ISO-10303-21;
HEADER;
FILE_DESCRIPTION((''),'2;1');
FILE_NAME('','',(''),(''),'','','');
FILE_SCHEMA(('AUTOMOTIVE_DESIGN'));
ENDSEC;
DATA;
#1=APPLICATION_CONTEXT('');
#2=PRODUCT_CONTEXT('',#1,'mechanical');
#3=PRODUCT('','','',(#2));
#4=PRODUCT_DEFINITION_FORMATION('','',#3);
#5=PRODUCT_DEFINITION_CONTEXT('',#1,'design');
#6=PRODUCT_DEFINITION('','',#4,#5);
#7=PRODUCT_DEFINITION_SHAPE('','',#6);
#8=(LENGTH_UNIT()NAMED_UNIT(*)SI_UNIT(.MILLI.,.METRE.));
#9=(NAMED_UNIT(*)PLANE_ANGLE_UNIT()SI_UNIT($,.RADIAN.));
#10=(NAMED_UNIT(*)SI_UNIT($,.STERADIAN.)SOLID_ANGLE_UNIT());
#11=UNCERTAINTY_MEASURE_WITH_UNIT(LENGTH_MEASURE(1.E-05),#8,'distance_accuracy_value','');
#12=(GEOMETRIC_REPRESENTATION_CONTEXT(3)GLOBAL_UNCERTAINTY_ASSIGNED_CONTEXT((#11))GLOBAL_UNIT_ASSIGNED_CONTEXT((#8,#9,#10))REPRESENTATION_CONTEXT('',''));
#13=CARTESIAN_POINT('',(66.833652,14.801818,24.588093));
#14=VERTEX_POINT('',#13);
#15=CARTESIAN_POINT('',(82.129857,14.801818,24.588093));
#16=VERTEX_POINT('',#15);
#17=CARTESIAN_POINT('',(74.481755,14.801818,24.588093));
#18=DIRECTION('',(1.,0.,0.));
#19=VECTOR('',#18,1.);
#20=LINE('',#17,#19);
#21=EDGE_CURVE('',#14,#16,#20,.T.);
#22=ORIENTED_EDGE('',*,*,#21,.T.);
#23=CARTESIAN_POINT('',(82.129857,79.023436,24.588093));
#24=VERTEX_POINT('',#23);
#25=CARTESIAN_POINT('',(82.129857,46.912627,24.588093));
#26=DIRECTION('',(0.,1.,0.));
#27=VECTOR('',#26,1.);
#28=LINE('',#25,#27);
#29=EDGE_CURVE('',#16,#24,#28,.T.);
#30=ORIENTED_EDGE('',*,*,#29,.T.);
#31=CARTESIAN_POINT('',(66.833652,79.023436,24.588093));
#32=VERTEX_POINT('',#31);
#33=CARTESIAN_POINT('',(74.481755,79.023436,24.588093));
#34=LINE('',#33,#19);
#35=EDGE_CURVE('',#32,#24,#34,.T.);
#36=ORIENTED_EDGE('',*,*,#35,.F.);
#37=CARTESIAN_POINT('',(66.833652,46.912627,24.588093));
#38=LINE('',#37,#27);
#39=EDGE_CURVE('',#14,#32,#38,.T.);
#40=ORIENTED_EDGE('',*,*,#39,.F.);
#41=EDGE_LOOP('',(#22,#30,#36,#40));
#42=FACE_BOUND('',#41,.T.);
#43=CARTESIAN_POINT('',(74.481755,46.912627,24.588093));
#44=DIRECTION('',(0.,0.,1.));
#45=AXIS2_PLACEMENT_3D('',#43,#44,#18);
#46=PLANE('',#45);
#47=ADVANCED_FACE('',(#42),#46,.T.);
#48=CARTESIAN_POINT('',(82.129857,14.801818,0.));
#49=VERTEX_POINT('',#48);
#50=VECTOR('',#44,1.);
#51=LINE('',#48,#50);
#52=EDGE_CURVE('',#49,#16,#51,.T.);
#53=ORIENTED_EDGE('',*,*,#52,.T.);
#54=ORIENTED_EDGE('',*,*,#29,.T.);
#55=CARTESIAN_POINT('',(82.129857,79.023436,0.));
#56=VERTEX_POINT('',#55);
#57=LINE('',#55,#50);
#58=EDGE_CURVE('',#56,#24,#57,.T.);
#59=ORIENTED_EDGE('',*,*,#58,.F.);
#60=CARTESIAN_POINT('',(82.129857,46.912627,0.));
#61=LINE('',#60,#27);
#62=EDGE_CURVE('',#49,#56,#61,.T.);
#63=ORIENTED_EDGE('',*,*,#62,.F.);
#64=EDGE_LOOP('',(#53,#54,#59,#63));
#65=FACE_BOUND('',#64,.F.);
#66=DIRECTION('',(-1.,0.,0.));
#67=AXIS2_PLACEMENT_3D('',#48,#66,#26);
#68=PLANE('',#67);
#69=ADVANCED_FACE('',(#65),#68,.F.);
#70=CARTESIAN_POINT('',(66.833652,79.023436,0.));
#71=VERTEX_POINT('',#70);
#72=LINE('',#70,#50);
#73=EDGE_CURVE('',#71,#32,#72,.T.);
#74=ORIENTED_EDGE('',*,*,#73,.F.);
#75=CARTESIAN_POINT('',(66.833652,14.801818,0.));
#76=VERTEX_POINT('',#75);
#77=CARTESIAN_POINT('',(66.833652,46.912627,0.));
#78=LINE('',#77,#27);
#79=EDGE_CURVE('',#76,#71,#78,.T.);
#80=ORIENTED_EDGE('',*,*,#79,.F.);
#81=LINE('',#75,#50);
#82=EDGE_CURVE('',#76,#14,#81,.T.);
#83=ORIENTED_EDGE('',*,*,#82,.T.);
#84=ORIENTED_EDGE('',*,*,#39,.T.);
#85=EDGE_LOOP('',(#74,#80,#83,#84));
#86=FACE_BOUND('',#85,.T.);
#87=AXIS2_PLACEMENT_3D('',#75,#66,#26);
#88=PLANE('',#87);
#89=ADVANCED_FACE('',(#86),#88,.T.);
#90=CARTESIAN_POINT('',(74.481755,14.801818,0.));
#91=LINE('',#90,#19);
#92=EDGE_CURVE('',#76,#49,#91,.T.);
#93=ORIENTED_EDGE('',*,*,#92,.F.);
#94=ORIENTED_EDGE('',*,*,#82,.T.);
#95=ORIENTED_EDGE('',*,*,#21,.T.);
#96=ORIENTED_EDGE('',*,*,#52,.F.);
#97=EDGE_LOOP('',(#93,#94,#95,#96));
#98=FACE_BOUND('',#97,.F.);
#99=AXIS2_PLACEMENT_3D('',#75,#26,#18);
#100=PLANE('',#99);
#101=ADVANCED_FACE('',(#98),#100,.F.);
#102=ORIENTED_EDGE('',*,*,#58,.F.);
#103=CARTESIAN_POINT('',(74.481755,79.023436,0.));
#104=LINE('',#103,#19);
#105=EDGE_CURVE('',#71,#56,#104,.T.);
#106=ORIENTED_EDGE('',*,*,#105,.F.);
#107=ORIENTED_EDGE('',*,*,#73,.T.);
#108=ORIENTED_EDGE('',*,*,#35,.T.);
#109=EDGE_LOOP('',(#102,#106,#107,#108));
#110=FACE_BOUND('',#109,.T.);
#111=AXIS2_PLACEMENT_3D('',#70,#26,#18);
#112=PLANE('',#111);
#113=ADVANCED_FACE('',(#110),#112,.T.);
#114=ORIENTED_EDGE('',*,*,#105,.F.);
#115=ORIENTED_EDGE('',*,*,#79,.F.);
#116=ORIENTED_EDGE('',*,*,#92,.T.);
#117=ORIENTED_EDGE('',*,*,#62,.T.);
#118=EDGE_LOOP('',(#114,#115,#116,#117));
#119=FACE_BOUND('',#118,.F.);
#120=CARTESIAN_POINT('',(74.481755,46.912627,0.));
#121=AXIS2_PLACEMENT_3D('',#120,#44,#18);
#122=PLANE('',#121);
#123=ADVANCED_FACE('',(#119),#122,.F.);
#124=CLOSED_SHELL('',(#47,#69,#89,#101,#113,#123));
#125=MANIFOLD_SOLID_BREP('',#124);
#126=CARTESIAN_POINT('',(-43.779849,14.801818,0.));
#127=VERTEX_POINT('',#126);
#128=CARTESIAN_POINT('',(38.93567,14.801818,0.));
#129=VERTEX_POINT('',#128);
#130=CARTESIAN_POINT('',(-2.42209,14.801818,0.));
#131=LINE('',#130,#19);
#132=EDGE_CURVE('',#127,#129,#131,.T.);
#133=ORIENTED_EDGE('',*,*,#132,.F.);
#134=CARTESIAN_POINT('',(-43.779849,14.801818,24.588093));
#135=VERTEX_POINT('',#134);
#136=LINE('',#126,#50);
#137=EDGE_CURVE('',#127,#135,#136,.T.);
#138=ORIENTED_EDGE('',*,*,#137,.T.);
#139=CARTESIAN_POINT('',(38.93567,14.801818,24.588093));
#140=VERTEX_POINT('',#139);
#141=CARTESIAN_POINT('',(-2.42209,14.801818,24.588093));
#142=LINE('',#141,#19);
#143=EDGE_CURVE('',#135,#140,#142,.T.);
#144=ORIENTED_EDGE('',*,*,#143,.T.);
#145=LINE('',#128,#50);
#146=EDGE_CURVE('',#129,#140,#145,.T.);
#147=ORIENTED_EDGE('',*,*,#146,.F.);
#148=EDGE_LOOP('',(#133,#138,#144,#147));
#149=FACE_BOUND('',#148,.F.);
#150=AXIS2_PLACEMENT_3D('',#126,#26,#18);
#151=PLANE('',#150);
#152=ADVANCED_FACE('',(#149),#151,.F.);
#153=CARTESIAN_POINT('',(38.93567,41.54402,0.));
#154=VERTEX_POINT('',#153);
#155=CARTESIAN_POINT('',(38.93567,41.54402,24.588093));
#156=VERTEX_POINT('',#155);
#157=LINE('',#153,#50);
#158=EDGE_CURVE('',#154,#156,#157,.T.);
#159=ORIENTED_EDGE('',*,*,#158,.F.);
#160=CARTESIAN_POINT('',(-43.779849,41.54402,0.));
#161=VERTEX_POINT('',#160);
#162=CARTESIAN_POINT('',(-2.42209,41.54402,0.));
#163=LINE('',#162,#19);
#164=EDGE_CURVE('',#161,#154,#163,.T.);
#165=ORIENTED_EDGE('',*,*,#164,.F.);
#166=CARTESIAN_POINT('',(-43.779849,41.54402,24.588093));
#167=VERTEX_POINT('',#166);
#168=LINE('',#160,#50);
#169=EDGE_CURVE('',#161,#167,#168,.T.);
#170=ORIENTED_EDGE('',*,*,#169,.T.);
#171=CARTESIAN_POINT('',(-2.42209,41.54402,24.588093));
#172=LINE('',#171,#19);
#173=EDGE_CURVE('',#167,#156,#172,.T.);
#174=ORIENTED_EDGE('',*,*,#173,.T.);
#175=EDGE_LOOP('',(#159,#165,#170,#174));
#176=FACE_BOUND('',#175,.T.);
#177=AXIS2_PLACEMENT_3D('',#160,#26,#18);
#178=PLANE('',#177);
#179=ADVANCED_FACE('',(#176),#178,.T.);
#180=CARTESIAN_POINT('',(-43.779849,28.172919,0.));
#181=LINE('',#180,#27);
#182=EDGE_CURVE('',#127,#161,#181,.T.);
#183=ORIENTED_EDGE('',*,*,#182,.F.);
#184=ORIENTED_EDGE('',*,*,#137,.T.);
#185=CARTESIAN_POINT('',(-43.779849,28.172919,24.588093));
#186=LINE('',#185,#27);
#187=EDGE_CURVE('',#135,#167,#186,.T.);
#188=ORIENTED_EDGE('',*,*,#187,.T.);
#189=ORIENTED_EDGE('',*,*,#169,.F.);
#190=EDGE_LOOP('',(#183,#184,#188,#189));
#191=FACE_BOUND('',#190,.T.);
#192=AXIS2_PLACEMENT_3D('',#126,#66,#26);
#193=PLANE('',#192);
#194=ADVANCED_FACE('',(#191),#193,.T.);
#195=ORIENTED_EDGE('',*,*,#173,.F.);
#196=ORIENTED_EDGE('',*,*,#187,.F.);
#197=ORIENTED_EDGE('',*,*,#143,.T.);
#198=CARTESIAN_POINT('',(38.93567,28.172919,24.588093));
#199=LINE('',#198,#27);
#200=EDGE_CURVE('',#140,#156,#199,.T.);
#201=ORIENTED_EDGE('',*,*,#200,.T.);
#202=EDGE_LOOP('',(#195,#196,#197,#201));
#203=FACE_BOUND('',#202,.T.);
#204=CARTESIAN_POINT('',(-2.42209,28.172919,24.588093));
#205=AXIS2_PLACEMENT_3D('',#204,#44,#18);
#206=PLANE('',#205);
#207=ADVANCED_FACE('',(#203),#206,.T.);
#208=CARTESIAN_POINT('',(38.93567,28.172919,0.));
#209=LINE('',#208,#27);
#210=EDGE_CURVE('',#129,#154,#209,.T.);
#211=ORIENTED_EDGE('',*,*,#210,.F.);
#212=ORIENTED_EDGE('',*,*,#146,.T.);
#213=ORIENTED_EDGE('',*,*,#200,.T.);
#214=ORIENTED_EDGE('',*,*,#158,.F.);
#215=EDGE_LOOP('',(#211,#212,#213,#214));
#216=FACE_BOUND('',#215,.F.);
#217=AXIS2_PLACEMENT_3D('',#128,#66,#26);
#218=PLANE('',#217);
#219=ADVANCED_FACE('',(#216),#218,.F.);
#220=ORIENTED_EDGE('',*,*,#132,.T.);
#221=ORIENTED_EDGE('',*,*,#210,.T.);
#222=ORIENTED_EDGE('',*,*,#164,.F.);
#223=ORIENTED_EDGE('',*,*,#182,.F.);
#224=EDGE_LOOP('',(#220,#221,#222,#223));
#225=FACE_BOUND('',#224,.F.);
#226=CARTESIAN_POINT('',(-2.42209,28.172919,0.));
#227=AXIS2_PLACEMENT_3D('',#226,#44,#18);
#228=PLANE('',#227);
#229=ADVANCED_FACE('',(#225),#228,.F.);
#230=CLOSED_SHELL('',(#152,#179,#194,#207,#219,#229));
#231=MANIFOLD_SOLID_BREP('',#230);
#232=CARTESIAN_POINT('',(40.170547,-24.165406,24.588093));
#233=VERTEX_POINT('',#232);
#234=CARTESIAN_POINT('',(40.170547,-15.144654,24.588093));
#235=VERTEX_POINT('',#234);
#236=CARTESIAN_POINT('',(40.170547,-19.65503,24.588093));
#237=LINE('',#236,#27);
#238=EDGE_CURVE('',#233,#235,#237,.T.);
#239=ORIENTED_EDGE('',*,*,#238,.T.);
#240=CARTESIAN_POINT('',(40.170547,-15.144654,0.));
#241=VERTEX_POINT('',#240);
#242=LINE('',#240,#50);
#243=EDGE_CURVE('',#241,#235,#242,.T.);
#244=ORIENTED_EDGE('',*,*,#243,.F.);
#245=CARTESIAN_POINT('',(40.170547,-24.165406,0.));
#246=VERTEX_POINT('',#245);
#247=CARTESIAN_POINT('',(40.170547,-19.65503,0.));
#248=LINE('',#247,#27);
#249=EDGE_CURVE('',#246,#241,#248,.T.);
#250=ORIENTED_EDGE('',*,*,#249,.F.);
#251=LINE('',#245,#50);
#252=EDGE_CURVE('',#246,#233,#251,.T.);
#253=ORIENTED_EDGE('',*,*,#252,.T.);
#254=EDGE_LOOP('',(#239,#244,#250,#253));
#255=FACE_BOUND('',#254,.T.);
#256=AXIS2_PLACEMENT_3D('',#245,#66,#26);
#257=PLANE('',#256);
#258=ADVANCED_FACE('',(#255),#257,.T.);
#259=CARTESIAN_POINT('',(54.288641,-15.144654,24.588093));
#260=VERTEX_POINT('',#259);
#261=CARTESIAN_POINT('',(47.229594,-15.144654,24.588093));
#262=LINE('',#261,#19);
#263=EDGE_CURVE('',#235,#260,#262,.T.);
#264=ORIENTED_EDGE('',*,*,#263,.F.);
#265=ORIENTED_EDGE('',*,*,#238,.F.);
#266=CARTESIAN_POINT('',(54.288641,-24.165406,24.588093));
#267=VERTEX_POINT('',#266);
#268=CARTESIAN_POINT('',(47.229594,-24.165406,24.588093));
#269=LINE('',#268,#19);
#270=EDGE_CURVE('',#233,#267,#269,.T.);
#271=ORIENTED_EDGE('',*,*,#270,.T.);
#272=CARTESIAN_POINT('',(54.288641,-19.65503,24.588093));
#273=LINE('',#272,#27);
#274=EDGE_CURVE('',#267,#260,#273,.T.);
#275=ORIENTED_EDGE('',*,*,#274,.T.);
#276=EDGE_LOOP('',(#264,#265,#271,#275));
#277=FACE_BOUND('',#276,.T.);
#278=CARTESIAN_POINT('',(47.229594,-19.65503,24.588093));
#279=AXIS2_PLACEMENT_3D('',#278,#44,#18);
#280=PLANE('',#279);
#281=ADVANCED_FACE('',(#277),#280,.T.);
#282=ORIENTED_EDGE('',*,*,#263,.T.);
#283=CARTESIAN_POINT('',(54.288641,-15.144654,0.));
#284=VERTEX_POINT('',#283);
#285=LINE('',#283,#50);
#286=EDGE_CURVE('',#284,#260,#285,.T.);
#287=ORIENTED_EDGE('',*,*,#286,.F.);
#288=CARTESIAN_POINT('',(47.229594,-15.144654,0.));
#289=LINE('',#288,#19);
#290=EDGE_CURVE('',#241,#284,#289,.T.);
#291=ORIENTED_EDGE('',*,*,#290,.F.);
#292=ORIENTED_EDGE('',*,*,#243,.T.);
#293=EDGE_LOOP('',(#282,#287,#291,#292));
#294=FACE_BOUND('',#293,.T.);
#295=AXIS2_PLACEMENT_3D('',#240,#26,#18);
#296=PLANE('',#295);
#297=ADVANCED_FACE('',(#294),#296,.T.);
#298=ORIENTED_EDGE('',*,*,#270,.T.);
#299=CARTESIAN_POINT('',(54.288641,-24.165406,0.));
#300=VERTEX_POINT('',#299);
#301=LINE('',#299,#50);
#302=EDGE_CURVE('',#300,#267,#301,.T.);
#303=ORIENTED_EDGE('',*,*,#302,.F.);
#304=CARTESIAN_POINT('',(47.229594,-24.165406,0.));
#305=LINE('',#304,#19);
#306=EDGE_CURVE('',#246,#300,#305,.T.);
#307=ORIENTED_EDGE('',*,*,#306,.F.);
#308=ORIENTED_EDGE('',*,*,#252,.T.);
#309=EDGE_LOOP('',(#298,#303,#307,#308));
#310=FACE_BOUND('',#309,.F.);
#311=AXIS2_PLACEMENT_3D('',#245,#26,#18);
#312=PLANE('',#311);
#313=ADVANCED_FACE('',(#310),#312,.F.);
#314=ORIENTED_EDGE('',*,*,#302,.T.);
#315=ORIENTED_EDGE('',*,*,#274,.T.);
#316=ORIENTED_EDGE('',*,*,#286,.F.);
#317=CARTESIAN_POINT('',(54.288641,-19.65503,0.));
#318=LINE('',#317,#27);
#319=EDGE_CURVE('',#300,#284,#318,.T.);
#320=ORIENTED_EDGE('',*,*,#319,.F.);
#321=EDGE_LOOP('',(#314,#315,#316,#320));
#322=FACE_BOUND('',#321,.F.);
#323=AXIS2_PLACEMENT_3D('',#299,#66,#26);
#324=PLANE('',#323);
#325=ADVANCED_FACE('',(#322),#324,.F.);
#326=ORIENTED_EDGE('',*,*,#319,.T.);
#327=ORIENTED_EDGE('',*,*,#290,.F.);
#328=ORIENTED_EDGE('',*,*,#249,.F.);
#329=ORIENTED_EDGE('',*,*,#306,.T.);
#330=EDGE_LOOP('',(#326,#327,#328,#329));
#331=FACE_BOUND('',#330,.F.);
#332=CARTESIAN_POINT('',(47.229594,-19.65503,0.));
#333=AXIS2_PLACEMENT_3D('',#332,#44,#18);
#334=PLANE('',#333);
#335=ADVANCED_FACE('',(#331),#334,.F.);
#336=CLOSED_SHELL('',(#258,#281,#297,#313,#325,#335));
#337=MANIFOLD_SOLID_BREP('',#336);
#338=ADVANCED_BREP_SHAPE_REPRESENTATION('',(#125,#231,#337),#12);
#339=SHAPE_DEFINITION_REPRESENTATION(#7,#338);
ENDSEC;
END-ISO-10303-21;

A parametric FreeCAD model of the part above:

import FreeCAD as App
import Part
import Sketcher

V = App.Vector

doc = App.newDocument("Part")
body = doc.addObject("PartDesign::Body", "Body")
body.AllowCompound = True

sketch1 = doc.addObject("Sketcher::SketchObject", "Sketch")
body.addObject(sketch1)
sketch1.AttachmentSupport = (doc.XY_Plane, [""])
sketch1.MapMode = "FlatFace"
sketch1.addGeometry([
    Part.LineSegment(V(-44, 42, 0), V(-44, 15, 0)),
    Part.LineSegment(V(-44, 15, 0), V(39, 15, 0)),
    Part.LineSegment(V(39, 15, 0), V(39, 42, 0)),
    Part.LineSegment(V(39, 42, 0), V(-44, 42, 0)),
    Part.LineSegment(V(67, 79, 0), V(67, 15, 0)),
    Part.LineSegment(V(67, 15, 0), V(82, 15, 0)),
    Part.LineSegment(V(82, 15, 0), V(82, 79, 0)),
    Part.LineSegment(V(82, 79, 0), V(67, 79, 0)),
    Part.LineSegment(V(40, -15, 0), V(40, -24, 0)),
    Part.LineSegment(V(40, -24, 0), V(54, -24, 0)),
    Part.LineSegment(V(54, -24, 0), V(54, -15, 0)),
    Part.LineSegment(V(54, -15, 0), V(40, -15, 0)),
], False)
sketch1.addConstraint([
    Sketcher.Constraint("Coincident", 0, 2, 1, 1),
    Sketcher.Constraint("Coincident", 1, 2, 2, 1),
    Sketcher.Constraint("Coincident", 2, 2, 3, 1),
    Sketcher.Constraint("Coincident", 3, 2, 0, 1),
    Sketcher.Constraint("Coincident", 4, 2, 5, 1),
    Sketcher.Constraint("Coincident", 5, 2, 6, 1),
    Sketcher.Constraint("Coincident", 6, 2, 7, 1),
    Sketcher.Constraint("Coincident", 7, 2, 4, 1),
    Sketcher.Constraint("Coincident", 8, 2, 9, 1),
    Sketcher.Constraint("Coincident", 9, 2, 10, 1),
    Sketcher.Constraint("Coincident", 10, 2, 11, 1),
    Sketcher.Constraint("Coincident", 11, 2, 8, 1),
    Sketcher.Constraint("Vertical", 0),
    Sketcher.Constraint("Horizontal", 1),
    Sketcher.Constraint("Vertical", 2),
    Sketcher.Constraint("Horizontal", 3),
    Sketcher.Constraint("Vertical", 4),
    Sketcher.Constraint("Horizontal", 5),
    Sketcher.Constraint("Vertical", 6),
    Sketcher.Constraint("Horizontal", 7),
    Sketcher.Constraint("Vertical", 8),
    Sketcher.Constraint("Horizontal", 9),
    Sketcher.Constraint("Vertical", 10),
    Sketcher.Constraint("Horizontal", 11),
    Sketcher.Constraint("Horizontal", 1, 2, 4, 2),
    Sketcher.Constraint("DistanceX", 1, 1, 1, 2, 82.715519),
    Sketcher.Constraint("DistanceY", 4, 2, 4, 1, 64.221618),
    Sketcher.Constraint("DistanceX", 0, 2, 4, 2, 110.613502),
    Sketcher.Constraint("DistanceX", 5, 1, 5, 2, 15.296205),
    Sketcher.Constraint("DistanceX", 9, 1, 9, 2, 14.118094),
    Sketcher.Constraint("DistanceY", 0, 2, 0, 1, 26.742202),
    Sketcher.Constraint("DistanceY", 8, 2, 8, 1, 9.020753),
    Sketcher.Constraint("DistanceX", 0, 2, -1, 1, 43.779849),
    Sketcher.Constraint("DistanceY", -1, 1, 0, 2, 14.801818),
    Sketcher.Constraint("DistanceX", -1, 1, 9, 2, 54.288641),
    Sketcher.Constraint("DistanceY", 10, 2, 4, 2, 29.946472),
])
pad1 = doc.addObject("PartDesign::Pad", "Pad")
body.addObject(pad1)
pad1.Profile = sketch1
pad1.Length = 24.588093

doc.recompute()
